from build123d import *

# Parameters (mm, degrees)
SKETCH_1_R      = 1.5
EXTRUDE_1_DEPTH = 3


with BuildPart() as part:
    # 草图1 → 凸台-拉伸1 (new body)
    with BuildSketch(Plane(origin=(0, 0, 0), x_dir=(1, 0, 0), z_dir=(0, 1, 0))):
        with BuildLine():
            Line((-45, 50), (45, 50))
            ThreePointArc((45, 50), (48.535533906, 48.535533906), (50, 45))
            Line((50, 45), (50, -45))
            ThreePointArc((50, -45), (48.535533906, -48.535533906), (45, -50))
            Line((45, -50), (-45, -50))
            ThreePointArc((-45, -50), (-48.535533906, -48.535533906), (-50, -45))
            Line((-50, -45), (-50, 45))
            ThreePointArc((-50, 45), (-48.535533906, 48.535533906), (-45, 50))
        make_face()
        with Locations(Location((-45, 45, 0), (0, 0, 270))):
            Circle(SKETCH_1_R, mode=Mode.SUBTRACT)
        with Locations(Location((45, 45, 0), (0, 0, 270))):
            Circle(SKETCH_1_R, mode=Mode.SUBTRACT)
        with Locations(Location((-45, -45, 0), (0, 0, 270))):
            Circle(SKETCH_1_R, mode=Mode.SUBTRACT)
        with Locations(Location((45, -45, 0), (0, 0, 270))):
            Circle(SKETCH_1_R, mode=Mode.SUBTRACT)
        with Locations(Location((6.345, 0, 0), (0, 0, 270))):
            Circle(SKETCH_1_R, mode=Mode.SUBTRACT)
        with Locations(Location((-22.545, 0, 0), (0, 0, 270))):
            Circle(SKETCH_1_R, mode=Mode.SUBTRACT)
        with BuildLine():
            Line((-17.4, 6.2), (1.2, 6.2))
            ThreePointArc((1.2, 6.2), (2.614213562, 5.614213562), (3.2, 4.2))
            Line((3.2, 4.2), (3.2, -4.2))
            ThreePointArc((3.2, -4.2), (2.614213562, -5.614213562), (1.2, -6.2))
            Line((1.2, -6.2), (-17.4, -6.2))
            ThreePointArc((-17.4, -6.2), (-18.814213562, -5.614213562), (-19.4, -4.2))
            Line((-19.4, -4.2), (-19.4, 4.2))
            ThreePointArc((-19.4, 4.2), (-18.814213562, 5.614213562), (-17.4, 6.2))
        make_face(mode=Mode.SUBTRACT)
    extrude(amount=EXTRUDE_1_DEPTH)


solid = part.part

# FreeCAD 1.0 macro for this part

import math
import FreeCAD as App
import Part
import Sketcher

doc = App.newDocument("Part")
body = doc.addObject("PartDesign::Body", "Body")

# Sketch on XZ plane
sketch1 = doc.addObject("Sketcher::SketchObject", "Sketch")
body.addObject(sketch1)
sketch1.AttachmentSupport = (doc.XZ_Plane, [""])
sketch1.MapMode = "FlatFace"
sketch1.addGeometry([
    Part.LineSegment(App.Vector(45, -50, 0), App.Vector(-45, -50, 0)),  # 0
    Part.ArcOfCircle(Part.Circle(App.Vector(-45, -45, 0), App.Vector(0, 0, 1), 5), math.radians(180), math.radians(270)),  # 1
    Part.LineSegment(App.Vector(-50, -45, 0), App.Vector(-50, 45, 0)),  # 2
    Part.ArcOfCircle(Part.Circle(App.Vector(-45, 45, 0), App.Vector(0, 0, 1), 5), math.radians(90), math.radians(180)),  # 3
    Part.LineSegment(App.Vector(-45, 50, 0), App.Vector(45, 50, 0)),  # 4
    Part.ArcOfCircle(Part.Circle(App.Vector(45, 45, 0), App.Vector(0, 0, 1), 5), math.radians(0), math.radians(90)),  # 5
    Part.LineSegment(App.Vector(50, 45, 0), App.Vector(50, -45, 0)),  # 6
    Part.ArcOfCircle(Part.Circle(App.Vector(45, -45, 0), App.Vector(0, 0, 1), 5), math.radians(-90), math.radians(0)),  # 7
    Part.Circle(App.Vector(45, 45, 0), App.Vector(0, 0, 1), 1.5),  # 8
    Part.Circle(App.Vector(-45, 45, 0), App.Vector(0, 0, 1), 1.5),  # 9
    Part.Circle(App.Vector(6.345, 0, 0), App.Vector(0, 0, 1), 1.5),  # 10
    Part.Circle(App.Vector(45, -45, 0), App.Vector(0, 0, 1), 1.5),  # 11
    Part.LineSegment(App.Vector(-17.4, -6.2, 0), App.Vector(1.2, -6.2, 0)),  # 12
    Part.ArcOfCircle(Part.Circle(App.Vector(1.2, -4.2, 0), App.Vector(0, 0, 1), 2), math.radians(-90), math.radians(0)),  # 13
    Part.LineSegment(App.Vector(3.2, -4.2, 0), App.Vector(3.2, 4.2, 0)),  # 14
    Part.ArcOfCircle(Part.Circle(App.Vector(1.2, 4.2, 0), App.Vector(0, 0, 1), 2), math.radians(0), math.radians(90)),  # 15
    Part.LineSegment(App.Vector(1.2, 6.2, 0), App.Vector(-17.4, 6.2, 0)),  # 16
    Part.ArcOfCircle(Part.Circle(App.Vector(-17.4, 4.2, 0), App.Vector(0, 0, 1), 2), math.radians(90), math.radians(180)),  # 17
    Part.LineSegment(App.Vector(-19.4, 4.2, 0), App.Vector(-19.4, -4.2, 0)),  # 18
    Part.ArcOfCircle(Part.Circle(App.Vector(-17.4, -4.2, 0), App.Vector(0, 0, 1), 2), math.radians(-180), math.radians(-90)),  # 19
    Part.Circle(App.Vector(-22.545, 0, 0), App.Vector(0, 0, 1), 1.5),  # 20
    Part.Circle(App.Vector(-45, -45, 0), App.Vector(0, 0, 1), 1.5),  # 21
], False)
sketch1.addConstraint([
    Sketcher.Constraint("Tangent", 0, 2, 1, 2),
    Sketcher.Constraint("Tangent", 1, 1, 2, 1),
    Sketcher.Constraint("Tangent", 2, 2, 3, 2),
    Sketcher.Constraint("Tangent", 3, 1, 4, 1),
    Sketcher.Constraint("Tangent", 4, 2, 5, 2),
    Sketcher.Constraint("Tangent", 5, 1, 6, 1),
    Sketcher.Constraint("Tangent", 6, 2, 7, 2),
    Sketcher.Constraint("Tangent", 7, 1, 0, 1),
    Sketcher.Constraint("Tangent", 12, 2, 13, 1),
    Sketcher.Constraint("Tangent", 13, 2, 14, 1),
    Sketcher.Constraint("Tangent", 14, 2, 15, 1),
    Sketcher.Constraint("Tangent", 15, 2, 16, 1),
    Sketcher.Constraint("Tangent", 16, 2, 17, 1),
    Sketcher.Constraint("Tangent", 17, 2, 18, 1),
    Sketcher.Constraint("Tangent", 18, 2, 19, 1),
    Sketcher.Constraint("Tangent", 19, 2, 12, 1),
    Sketcher.Constraint("Horizontal", 0),
    Sketcher.Constraint("Vertical", 2),
    Sketcher.Constraint("Horizontal", 4),
    Sketcher.Constraint("Vertical", 6),
    Sketcher.Constraint("Horizontal", 12),
    Sketcher.Constraint("Vertical", 14),
    Sketcher.Constraint("Horizontal", 16),
    Sketcher.Constraint("Vertical", 18),
    Sketcher.Constraint("Coincident", 8, 3, 5, 3),
    Sketcher.Constraint("Coincident", 9, 3, 3, 3),
    Sketcher.Constraint("Coincident", 11, 3, 7, 3),
    Sketcher.Constraint("Coincident", 21, 3, 1, 3),
    Sketcher.Constraint("Equal", 1, 3),
    Sketcher.Constraint("Equal", 3, 5),
    Sketcher.Constraint("Equal", 5, 7),
    Sketcher.Constraint("Equal", 8, 9),
    Sketcher.Constraint("Equal", 9, 10),
    Sketcher.Constraint("Equal", 10, 11),
    Sketcher.Constraint("Equal", 13, 15),
    Sketcher.Constraint("Equal", 15, 17),
    Sketcher.Constraint("Equal", 17, 19),
    Sketcher.Constraint("Equal", 11, 20),
    Sketcher.Constraint("Equal", 20, 21),
    Sketcher.Constraint("Symmetric", 1, 3, 5, 3, -1, 1),
    Sketcher.Constraint("PointOnObject", 10, 3, -1),
    Sketcher.Constraint("PointOnObject", 20, 3, -1),
    Sketcher.Constraint("Equal", 4, 2),
    Sketcher.Constraint("Diameter", 8, 3.0),
    Sketcher.Constraint("Radius", 1, 5.0),
    Sketcher.Constraint("Radius", 13, 2.0),
    Sketcher.Constraint("DistanceX", 0, 2, 0, 1, 90.0),
    Sketcher.Constraint("DistanceX", 12, 1, 12, 2, 18.6),
    Sketcher.Constraint("DistanceY", 14, 1, 14, 2, 8.4),
    Sketcher.Constraint("DistanceX", -1, 1, 13, 3, 1.2),
    Sketcher.Constraint("DistanceY", 13, 3, -1, 1, 4.2),
    Sketcher.Constraint("DistanceX", 20, 3, 10, 3, 28.89),
    Sketcher.Constraint("DistanceX", -1, 1, 10, 3, 6.345),
])
pad1 = doc.addObject("PartDesign::Pad", "Pad")
body.addObject(pad1)
pad1.Profile = sketch1
pad1.Length = 3
pad1.Reversed = True

doc.recompute()
